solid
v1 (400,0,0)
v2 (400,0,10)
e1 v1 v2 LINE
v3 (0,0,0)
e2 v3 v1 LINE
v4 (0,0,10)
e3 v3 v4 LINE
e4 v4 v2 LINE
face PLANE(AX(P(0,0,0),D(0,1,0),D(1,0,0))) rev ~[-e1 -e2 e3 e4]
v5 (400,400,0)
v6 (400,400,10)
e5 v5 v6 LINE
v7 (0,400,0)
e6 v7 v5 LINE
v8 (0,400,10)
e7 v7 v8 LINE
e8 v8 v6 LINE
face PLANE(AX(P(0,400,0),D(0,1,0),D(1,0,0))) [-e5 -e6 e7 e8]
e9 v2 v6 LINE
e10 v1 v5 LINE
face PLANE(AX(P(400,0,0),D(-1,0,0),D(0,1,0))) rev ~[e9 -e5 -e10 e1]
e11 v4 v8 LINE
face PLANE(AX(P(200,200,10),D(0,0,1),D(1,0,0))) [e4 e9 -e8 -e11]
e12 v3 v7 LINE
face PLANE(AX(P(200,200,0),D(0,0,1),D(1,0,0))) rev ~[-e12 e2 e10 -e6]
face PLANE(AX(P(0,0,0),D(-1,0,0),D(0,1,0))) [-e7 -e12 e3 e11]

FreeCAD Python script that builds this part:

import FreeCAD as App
import Part
import Sketcher


def add_polygon(sketch, points):
    """Adds a closed chain of lines whose ends are joined by coincident constraints."""
    first, n = sketch.GeometryCount, len(points)
    for a, b in zip(points, points[1:] + points[:1]):
        sketch.addGeometry(Part.LineSegment(App.Vector(*a, 0), App.Vector(*b, 0)), False)
    for i in range(n):
        sketch.addConstraint(Sketcher.Constraint("Coincident", first + i, 2, first + (i + 1) % n, 1))

doc = App.newDocument("Part")
body = doc.addObject("PartDesign::Body", "Body")

sketch1 = doc.addObject("Sketcher::SketchObject", "Sketch")
body.addObject(sketch1)
sketch1.AttachmentSupport = (doc.XY_Plane, [""])
sketch1.MapMode = "FlatFace"
add_polygon(sketch1, [(0, 400), (0, 0), (400, 0), (400, 400)])
sketch1.addConstraint(Sketcher.Constraint("Vertical", 0))
sketch1.addConstraint(Sketcher.Constraint("Horizontal", 1))
sketch1.addConstraint(Sketcher.Constraint("Vertical", 2))
sketch1.addConstraint(Sketcher.Constraint("Horizontal", 3))
sketch1.addConstraint(Sketcher.Constraint("Coincident", 0, 2, -1, 1))
sketch1.addConstraint(Sketcher.Constraint("Equal", 3, 0))
sketch1.addConstraint(Sketcher.Constraint("DistanceX", 1, 1, 1, 2, 400.0))
pad1 = doc.addObject("PartDesign::Pad", "Pad")
body.addObject(pad1)
pad1.Profile = sketch1
pad1.Length = 10

doc.recompute()
